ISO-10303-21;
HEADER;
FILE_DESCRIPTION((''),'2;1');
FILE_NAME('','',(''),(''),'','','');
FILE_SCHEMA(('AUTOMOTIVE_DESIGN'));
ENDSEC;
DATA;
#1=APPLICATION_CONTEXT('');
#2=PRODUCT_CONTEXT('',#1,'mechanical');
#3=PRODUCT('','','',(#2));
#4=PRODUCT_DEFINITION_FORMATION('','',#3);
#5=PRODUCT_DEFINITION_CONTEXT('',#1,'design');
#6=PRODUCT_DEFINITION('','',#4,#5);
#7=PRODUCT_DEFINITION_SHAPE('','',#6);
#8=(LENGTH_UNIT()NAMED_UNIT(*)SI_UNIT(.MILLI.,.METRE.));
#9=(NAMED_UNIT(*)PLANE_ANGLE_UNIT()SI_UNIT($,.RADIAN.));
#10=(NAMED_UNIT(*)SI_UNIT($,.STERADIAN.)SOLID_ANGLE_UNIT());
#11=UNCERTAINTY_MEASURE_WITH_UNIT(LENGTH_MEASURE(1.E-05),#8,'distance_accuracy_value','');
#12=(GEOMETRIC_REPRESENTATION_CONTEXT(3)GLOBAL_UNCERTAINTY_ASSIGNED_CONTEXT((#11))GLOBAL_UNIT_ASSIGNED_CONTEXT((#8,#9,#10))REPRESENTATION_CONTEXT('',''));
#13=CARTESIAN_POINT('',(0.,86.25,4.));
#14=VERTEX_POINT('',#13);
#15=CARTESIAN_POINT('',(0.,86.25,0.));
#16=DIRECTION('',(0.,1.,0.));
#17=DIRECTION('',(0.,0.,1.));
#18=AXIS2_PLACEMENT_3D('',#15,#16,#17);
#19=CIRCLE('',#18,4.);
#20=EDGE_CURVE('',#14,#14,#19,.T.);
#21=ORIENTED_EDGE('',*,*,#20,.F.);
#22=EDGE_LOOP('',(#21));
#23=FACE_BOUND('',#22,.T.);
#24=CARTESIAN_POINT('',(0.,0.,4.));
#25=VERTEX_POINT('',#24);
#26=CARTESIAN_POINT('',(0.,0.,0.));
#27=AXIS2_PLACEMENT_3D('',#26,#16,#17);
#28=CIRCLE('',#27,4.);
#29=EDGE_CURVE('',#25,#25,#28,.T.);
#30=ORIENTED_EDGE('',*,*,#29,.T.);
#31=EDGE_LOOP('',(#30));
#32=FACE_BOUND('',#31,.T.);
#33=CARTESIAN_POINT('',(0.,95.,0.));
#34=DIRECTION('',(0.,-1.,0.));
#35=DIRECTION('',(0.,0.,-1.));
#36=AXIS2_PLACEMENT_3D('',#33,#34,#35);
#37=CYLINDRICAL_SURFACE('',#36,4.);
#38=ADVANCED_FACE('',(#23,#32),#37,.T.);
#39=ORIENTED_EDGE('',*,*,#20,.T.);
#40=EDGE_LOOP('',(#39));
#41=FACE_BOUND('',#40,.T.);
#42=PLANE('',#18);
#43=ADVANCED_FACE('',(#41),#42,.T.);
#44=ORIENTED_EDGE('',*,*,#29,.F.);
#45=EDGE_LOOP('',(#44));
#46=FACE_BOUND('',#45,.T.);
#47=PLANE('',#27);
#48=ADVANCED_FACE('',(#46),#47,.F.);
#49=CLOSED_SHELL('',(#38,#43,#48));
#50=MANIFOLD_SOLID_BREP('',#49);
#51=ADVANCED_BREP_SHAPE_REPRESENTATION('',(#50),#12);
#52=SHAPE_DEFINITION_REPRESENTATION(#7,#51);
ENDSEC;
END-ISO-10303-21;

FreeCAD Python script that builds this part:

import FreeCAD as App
import Part
import Sketcher
from FreeCAD import Vector
Q = App.Units.Quantity

doc = App.newDocument("Part")
body = doc.addObject("PartDesign::Body", "Body")

sketch1 = body.newObject("Sketcher::SketchObject", "Sketch")
sketch1.AttachmentSupport = (doc.getObject("XZ_Plane"), [""])
sketch1.MapMode = "FlatFace"
sketch1.addGeometry(Part.Circle(Vector(0, 0, 0), Vector(0, 0, 1), 4), False)
sketch1.addConstraint(Sketcher.Constraint("Coincident", 0, 3, -1, 1))
sketch1.addConstraint(Sketcher.Constraint("Diameter", 0, Q("8 mm")))
pad1 = body.newObject("PartDesign::Pad", "Pad")
pad1.Profile = sketch1
pad1.Length = 95
pad1.Reversed = True

sketch2 = body.newObject("Sketcher::SketchObject", "Sketch001")
sketch2.AttachmentSupport = (doc.getObject("XZ_Plane"), [""])
sketch2.MapMode = "FlatFace"
sketch2.AttachmentOffset = App.Placement(Vector(0, 0, -95), App.Rotation())
sketch2.addGeometry(Part.Circle(Vector(0, 0, 0), Vector(0, 0, 1), 4), False)
sketch2.addConstraint(Sketcher.Constraint("Coincident", 0, 3, -1, 1))
sketch2.addConstraint(Sketcher.Constraint("Diameter", 0, Q("8 mm")))
pocket1 = body.newObject("PartDesign::Pocket", "Pocket")
pocket1.Profile = sketch2
pocket1.Length = 8.75
pocket1.Reversed = True

doc.recompute()
